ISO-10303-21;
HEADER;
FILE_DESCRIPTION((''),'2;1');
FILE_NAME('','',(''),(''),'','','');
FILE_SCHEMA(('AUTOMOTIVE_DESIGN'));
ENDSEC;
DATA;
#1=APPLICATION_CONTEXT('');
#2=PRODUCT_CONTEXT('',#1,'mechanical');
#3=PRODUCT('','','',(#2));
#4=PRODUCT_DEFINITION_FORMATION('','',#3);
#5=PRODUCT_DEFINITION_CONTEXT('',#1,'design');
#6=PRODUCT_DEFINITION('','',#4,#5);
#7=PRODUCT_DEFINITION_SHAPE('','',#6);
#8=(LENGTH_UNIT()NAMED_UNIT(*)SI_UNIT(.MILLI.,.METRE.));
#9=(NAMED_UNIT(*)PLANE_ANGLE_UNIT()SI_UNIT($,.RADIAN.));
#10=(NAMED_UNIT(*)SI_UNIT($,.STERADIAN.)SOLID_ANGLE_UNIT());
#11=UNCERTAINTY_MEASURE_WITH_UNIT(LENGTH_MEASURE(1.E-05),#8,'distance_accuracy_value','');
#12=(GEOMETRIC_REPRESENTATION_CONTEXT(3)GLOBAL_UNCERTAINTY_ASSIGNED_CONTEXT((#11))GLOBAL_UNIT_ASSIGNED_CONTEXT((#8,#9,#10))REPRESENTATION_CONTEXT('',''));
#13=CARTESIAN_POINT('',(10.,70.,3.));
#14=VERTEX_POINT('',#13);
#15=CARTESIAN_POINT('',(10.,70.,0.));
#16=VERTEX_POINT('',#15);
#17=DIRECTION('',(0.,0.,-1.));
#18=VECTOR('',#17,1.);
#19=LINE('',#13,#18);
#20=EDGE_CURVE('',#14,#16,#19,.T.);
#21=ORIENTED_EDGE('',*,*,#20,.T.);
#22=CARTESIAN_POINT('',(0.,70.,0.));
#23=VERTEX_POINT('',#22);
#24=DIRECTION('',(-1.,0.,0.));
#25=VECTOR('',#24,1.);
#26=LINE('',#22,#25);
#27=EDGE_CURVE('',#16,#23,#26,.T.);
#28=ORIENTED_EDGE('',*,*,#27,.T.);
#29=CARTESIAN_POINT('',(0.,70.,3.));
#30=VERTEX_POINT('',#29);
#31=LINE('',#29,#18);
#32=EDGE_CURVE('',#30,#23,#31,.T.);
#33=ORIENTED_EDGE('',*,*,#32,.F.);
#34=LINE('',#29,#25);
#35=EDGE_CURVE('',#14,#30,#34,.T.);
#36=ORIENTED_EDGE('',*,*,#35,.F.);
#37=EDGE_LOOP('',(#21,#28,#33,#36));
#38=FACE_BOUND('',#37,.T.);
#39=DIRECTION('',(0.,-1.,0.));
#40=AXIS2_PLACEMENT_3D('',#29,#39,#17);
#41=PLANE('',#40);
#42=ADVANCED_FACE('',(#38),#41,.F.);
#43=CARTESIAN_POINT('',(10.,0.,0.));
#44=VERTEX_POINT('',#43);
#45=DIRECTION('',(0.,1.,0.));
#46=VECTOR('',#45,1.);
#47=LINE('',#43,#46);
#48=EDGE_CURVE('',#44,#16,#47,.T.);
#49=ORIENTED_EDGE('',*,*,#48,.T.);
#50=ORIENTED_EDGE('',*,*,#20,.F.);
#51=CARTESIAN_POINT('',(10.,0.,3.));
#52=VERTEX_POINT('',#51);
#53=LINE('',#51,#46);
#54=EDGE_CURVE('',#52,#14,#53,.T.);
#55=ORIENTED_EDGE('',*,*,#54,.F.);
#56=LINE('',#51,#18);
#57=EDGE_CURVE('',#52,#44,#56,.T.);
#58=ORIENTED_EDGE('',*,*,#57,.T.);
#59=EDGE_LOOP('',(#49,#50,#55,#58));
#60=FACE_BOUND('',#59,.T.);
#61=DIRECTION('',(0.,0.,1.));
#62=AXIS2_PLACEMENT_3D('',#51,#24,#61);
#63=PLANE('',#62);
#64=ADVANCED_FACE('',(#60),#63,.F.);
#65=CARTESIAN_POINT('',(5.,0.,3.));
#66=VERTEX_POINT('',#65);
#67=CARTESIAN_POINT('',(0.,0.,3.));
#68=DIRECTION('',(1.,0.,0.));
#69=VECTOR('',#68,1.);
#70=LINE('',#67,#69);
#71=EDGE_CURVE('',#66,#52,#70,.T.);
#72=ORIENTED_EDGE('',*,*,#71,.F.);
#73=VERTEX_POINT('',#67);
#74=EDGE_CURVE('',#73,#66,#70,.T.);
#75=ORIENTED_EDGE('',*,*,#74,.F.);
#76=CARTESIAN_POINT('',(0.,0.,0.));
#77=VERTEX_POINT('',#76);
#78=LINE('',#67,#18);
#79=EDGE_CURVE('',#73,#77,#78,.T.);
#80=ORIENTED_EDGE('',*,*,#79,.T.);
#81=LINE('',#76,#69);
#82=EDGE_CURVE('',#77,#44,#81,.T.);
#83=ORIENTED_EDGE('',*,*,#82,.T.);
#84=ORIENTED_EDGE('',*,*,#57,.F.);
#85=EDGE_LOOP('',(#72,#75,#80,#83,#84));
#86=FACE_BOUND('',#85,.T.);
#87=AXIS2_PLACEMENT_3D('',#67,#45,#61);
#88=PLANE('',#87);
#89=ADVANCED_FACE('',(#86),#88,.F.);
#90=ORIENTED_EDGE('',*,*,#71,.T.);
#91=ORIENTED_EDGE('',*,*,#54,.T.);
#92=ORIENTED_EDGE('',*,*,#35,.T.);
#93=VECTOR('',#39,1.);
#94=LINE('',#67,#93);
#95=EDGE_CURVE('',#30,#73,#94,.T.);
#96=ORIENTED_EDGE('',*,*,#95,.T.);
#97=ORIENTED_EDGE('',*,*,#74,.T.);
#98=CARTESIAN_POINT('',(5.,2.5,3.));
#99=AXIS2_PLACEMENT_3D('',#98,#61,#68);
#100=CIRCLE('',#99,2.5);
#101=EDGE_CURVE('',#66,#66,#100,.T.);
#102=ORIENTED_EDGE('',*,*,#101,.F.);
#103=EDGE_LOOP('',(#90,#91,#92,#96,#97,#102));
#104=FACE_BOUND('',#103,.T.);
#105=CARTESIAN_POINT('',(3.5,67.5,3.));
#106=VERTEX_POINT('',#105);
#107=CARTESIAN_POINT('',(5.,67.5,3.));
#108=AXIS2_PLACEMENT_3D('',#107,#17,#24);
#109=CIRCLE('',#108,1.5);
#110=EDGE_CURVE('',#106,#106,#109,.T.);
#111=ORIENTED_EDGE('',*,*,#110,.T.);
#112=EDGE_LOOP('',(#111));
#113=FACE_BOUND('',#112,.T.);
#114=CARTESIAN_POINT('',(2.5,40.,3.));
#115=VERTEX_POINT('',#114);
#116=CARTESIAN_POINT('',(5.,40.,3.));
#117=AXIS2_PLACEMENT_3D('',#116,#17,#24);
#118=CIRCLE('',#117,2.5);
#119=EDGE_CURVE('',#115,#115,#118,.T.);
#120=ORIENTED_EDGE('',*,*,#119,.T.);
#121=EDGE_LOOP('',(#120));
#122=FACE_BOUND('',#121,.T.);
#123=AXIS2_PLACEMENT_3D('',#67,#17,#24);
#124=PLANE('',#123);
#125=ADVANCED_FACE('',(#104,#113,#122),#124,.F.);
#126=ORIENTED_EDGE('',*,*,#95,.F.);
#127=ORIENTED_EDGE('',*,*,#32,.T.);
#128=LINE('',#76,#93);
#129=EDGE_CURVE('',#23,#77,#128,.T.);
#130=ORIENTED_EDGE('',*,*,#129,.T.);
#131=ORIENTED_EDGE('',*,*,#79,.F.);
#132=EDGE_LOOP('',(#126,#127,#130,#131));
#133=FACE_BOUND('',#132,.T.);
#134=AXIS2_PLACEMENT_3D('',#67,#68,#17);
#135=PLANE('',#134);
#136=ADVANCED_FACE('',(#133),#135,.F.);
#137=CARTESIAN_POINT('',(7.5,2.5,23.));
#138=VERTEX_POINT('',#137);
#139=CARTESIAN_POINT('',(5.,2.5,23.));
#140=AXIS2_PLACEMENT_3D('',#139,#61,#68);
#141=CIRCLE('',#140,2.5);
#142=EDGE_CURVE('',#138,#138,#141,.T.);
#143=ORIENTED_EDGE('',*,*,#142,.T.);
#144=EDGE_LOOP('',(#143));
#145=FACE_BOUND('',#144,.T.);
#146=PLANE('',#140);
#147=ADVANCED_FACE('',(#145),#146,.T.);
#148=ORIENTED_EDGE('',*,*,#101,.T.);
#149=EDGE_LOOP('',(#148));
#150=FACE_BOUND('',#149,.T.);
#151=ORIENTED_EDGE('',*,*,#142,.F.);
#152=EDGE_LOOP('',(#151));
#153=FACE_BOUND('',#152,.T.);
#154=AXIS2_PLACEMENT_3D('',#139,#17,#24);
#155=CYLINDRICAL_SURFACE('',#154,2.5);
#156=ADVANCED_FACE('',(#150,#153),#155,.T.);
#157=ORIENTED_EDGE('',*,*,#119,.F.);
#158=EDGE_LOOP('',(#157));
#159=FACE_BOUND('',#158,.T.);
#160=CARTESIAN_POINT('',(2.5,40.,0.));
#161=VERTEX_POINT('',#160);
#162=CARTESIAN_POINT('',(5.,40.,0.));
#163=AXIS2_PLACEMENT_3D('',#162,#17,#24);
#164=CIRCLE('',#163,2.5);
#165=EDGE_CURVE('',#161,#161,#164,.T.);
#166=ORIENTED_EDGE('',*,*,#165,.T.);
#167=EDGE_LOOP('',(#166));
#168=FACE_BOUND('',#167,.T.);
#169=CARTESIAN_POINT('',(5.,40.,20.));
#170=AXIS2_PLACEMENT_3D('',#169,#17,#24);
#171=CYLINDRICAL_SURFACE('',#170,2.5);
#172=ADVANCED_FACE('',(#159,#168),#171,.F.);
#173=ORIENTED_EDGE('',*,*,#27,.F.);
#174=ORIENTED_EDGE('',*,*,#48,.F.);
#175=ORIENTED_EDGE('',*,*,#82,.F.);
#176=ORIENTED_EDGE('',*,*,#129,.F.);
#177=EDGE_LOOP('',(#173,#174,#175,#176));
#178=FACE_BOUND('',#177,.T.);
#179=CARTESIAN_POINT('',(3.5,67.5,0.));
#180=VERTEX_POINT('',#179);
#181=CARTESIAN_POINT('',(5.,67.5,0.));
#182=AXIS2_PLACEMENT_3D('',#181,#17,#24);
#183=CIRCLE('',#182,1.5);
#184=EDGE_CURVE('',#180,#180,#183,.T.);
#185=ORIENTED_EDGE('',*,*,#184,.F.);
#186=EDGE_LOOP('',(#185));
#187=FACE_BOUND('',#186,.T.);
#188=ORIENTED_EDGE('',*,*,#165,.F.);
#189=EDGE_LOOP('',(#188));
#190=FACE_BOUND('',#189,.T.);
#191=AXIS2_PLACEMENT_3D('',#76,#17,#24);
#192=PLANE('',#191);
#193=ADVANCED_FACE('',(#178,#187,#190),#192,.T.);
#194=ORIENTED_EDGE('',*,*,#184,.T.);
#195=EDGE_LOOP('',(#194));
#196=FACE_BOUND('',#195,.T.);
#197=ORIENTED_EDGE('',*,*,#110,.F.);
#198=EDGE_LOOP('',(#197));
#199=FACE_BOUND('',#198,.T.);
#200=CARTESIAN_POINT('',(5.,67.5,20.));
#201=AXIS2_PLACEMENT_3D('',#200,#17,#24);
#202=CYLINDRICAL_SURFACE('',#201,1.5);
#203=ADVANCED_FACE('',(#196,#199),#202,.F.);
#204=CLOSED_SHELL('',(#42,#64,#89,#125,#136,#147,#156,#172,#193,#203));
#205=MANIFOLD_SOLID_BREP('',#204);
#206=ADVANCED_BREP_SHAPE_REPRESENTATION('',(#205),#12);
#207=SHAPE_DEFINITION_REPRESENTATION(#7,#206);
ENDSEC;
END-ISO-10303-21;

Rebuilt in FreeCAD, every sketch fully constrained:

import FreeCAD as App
import Part
import Sketcher
from FreeCAD import Vector

doc = App.newDocument("Part")
body = doc.addObject("PartDesign::Body", "Body")

sketch1 = body.newObject("Sketcher::SketchObject", "Sketch")
sketch1.AttachmentSupport = (doc.getObject("XY_Plane"), [""])
sketch1.MapMode = "FlatFace"
sketch1.addGeometry(Part.LineSegment(Vector(0, 70, 0), Vector(0, 0, 0)), False)
sketch1.addGeometry(Part.LineSegment(Vector(0, 0, 0), Vector(10, 0, 0)), False)
sketch1.addGeometry(Part.LineSegment(Vector(10, 0, 0), Vector(10, 70, 0)), False)
sketch1.addGeometry(Part.LineSegment(Vector(10, 70, 0), Vector(0, 70, 0)), False)
sketch1.addConstraint(Sketcher.Constraint("Coincident", 0, 2, 1, 1))
sketch1.addConstraint(Sketcher.Constraint("Coincident", 1, 2, 2, 1))
sketch1.addConstraint(Sketcher.Constraint("Coincident", 2, 2, 3, 1))
sketch1.addConstraint(Sketcher.Constraint("Coincident", 3, 2, 0, 1))
sketch1.addConstraint(Sketcher.Constraint("Vertical", 0))
sketch1.addConstraint(Sketcher.Constraint("Horizontal", 1))
sketch1.addConstraint(Sketcher.Constraint("Vertical", 2))
sketch1.addConstraint(Sketcher.Constraint("Horizontal", 3))
sketch1.addConstraint(Sketcher.Constraint("Coincident", 0, 2, -1, 1))
sketch1.addConstraint(Sketcher.Constraint("DistanceX", 1, 1, 1, 2, 10.0))
sketch1.addConstraint(Sketcher.Constraint("DistanceY", 0, 2, 0, 1, 70.0))
pad1 = body.newObject("PartDesign::Pad", "Pad")
pad1.Profile = sketch1
pad1.Length = 3

sketch2 = body.newObject("Sketcher::SketchObject", "Sketch001")
sketch2.AttachmentSupport = (doc.getObject("XY_Plane"), [""])
sketch2.MapMode = "FlatFace"
sketch2.AttachmentOffset = App.Placement(Vector(0, 0, 3), App.Rotation())
sketch2.addGeometry(Part.Circle(Vector(5, 2.5, 0), Vector(0, 0, 1), 2.5), False)
sketch2.addConstraint(Sketcher.Constraint("Diameter", 0, 5.0))
sketch2.addConstraint(Sketcher.Constraint("DistanceX", -1, 1, 0, 3, 5.0))
sketch2.addConstraint(Sketcher.Constraint("DistanceY", -1, 1, 0, 3, 2.5))
pad2 = body.newObject("PartDesign::Pad", "Pad001")
pad2.Profile = sketch2
pad2.Length = 20

sketch3 = body.newObject("Sketcher::SketchObject", "Sketch002")
sketch3.AttachmentSupport = (doc.getObject("XY_Plane"), [""])
sketch3.MapMode = "FlatFace"
sketch3.addGeometry(Part.Circle(Vector(5, 67.5, 0), Vector(0, 0, 1), 1.5), False)
sketch3.addConstraint(Sketcher.Constraint("Diameter", 0, 3.0))
sketch3.addConstraint(Sketcher.Constraint("DistanceX", -1, 1, 0, 3, 5.0))
sketch3.addConstraint(Sketcher.Constraint("DistanceY", -1, 1, 0, 3, 67.5))
pocket1 = body.newObject("PartDesign::Pocket", "Pocket")
pocket1.Profile = sketch3
pocket1.Length = 20
pocket1.Reversed = True

sketch4 = body.newObject("Sketcher::SketchObject", "Sketch003")
sketch4.AttachmentSupport = (doc.getObject("XY_Plane"), [""])
sketch4.MapMode = "FlatFace"
sketch4.addGeometry(Part.Circle(Vector(5, 40, 0), Vector(0, 0, 1), 2.5), False)
sketch4.addConstraint(Sketcher.Constraint("Diameter", 0, 5.0))
sketch4.addConstraint(Sketcher.Constraint("DistanceX", -1, 1, 0, 3, 5.0))
sketch4.addConstraint(Sketcher.Constraint("DistanceY", -1, 1, 0, 3, 40.0))
pocket2 = body.newObject("PartDesign::Pocket", "Pocket001")
pocket2.Profile = sketch4
pocket2.Length = 20
pocket2.Reversed = True

doc.recompute()
